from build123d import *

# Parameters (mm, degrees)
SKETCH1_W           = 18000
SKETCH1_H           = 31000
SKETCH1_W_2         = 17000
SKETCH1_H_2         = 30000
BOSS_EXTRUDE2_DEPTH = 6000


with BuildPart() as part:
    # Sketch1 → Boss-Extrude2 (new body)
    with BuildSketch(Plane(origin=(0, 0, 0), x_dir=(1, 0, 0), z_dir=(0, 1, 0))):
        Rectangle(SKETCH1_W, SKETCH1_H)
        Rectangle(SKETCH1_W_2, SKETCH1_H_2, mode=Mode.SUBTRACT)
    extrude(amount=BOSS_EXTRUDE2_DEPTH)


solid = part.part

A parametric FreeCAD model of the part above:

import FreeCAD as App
import Part
import Sketcher


def add_polygon(sketch, points):
    """Adds a closed chain of lines whose ends are joined by coincident constraints."""
    first, n = sketch.GeometryCount, len(points)
    for a, b in zip(points, points[1:] + points[:1]):
        sketch.addGeometry(Part.LineSegment(App.Vector(*a, 0), App.Vector(*b, 0)), False)
    for i in range(n):
        sketch.addConstraint(Sketcher.Constraint("Coincident", first + i, 2, first + (i + 1) % n, 1))

doc = App.newDocument("Part")
body = doc.addObject("PartDesign::Body", "Body")

# Sketch on XZ plane
sketch1 = doc.addObject("Sketcher::SketchObject", "Sketch")
body.addObject(sketch1)
sketch1.AttachmentSupport = (doc.XZ_Plane, [""])
sketch1.MapMode = "FlatFace"
add_polygon(sketch1, [(-9000, -15500), (-9000, 15500), (9000, 15500), (9000, -15500)])  # lines 0-3
add_polygon(sketch1, [(8500, 15000), (-8500, 15000), (-8500, -15000), (8500, -15000)])  # lines 4-7
sketch1.addConstraint([
    Sketcher.Constraint("Vertical", 0),
    Sketcher.Constraint("Horizontal", 1),
    Sketcher.Constraint("Vertical", 2),
    Sketcher.Constraint("Horizontal", 3),
    Sketcher.Constraint("Horizontal", 4),
    Sketcher.Constraint("Vertical", 5),
    Sketcher.Constraint("Horizontal", 6),
    Sketcher.Constraint("Vertical", 7),
    Sketcher.Constraint("Symmetric", 0, 2, 2, 2, -1, 1),
    Sketcher.Constraint("Symmetric", 4, 2, 6, 2, -1, 1),
    Sketcher.Constraint("DistanceX", 1, 1, 1, 2, 18000.0),
    Sketcher.Constraint("DistanceX", 4, 2, 4, 1, 17000.0),
    Sketcher.Constraint("DistanceY", 0, 1, 0, 2, 31000.0),
    Sketcher.Constraint("DistanceY", 5, 2, 5, 1, 30000.0),
])
pad1 = doc.addObject("PartDesign::Pad", "Pad")
body.addObject(pad1)
pad1.Profile = sketch1
pad1.Length = 6000
pad1.Reversed = True

doc.recompute()
